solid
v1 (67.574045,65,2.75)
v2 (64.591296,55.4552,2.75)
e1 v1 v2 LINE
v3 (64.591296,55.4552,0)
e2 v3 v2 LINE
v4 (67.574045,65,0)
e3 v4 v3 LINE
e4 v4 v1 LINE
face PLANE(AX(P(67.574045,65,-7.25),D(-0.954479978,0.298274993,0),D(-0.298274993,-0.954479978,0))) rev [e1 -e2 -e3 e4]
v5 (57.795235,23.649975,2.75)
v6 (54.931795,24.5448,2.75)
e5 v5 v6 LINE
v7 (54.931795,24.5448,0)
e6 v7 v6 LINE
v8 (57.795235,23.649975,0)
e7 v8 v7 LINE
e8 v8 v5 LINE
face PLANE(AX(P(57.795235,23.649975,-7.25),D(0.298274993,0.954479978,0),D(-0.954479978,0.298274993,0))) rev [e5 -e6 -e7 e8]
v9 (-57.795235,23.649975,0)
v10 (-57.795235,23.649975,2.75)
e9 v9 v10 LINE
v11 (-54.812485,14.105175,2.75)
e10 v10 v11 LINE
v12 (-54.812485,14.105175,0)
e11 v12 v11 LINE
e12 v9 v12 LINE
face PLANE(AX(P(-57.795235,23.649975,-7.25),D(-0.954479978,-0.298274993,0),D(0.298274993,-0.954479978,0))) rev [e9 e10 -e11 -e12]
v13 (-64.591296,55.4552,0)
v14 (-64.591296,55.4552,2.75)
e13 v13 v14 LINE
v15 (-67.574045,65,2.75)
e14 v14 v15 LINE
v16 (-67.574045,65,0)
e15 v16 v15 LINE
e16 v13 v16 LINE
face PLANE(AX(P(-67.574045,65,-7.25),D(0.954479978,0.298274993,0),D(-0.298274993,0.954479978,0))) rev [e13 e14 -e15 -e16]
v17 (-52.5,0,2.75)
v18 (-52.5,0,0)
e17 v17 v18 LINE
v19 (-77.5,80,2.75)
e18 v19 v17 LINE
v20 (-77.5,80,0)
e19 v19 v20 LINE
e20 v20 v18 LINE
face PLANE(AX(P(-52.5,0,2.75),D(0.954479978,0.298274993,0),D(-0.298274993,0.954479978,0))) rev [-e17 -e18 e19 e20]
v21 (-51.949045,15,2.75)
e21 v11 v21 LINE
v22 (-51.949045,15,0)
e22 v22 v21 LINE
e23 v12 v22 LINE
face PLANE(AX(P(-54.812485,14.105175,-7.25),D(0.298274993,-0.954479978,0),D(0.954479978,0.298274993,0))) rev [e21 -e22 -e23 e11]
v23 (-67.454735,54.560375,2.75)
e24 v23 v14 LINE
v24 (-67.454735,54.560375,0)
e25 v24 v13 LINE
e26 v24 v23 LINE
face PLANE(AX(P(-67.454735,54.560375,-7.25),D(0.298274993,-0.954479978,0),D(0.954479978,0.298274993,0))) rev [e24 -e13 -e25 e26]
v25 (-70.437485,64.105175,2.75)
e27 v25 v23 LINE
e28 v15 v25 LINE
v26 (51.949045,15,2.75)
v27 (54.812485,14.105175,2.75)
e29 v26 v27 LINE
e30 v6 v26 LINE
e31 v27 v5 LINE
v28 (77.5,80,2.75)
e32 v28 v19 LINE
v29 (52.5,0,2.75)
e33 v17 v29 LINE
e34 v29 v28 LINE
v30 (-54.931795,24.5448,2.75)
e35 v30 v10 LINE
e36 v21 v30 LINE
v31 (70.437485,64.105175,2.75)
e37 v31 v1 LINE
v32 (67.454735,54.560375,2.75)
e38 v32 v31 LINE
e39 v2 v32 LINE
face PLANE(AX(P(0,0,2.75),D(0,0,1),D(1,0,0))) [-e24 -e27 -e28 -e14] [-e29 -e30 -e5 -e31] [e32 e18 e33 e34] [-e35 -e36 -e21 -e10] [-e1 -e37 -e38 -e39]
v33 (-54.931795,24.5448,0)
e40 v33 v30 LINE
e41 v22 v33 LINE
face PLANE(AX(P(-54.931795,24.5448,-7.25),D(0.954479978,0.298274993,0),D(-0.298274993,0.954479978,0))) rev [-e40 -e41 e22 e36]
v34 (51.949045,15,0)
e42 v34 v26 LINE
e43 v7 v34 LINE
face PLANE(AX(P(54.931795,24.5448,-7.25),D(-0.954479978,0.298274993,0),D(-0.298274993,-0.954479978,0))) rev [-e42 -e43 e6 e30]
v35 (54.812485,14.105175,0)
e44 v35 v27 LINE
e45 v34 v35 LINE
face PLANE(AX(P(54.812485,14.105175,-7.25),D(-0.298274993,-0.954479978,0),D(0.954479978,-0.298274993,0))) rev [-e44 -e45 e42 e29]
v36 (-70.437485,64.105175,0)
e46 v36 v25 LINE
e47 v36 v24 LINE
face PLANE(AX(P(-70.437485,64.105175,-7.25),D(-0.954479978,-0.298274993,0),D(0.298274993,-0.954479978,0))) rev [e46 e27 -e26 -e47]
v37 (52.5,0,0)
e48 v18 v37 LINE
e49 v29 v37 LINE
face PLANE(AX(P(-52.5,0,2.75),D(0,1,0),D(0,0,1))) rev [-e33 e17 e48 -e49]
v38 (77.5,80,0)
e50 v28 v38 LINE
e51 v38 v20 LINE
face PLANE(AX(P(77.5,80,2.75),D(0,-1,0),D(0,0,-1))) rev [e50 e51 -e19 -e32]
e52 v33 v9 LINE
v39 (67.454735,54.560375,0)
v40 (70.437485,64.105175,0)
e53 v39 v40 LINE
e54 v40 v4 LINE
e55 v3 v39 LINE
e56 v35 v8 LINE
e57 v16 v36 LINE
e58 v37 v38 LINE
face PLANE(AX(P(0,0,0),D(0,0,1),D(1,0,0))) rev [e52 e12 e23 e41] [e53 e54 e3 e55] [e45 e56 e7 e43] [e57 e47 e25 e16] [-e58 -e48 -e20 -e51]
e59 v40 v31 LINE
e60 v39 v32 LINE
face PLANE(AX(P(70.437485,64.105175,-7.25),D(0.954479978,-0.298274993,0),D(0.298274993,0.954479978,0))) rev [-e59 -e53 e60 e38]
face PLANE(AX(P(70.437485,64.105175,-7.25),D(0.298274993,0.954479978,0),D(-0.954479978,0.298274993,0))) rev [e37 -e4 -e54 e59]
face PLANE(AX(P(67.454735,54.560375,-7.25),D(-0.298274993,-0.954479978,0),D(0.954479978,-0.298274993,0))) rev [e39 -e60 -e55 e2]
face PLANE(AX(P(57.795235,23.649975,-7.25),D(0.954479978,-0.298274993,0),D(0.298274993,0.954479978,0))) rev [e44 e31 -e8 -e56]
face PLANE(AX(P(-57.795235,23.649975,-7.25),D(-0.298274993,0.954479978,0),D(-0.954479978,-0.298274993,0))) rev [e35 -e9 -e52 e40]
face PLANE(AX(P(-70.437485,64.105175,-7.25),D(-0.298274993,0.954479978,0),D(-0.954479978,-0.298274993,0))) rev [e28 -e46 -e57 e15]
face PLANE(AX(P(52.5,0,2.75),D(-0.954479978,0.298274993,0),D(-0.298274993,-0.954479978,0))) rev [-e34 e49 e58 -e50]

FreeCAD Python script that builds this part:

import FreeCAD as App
import Part
import Sketcher

V = App.Vector
Q = App.Units.Quantity

doc = App.newDocument("Part")
body = doc.addObject("PartDesign::Body", "Body")

sketch1 = doc.addObject("Sketcher::SketchObject", "Sketch")
body.addObject(sketch1)
sketch1.AttachmentSupport = (doc.XY_Plane, [""])
sketch1.MapMode = "FlatFace"
sketch1.addGeometry([
    Part.LineSegment(V(-52, 0, 0), V(52, 0, 0)),
    Part.LineSegment(V(52, 0, 0), V(78, 80, 0)),
    Part.LineSegment(V(78, 80, 0), V(-78, 80, 0)),
    Part.LineSegment(V(-78, 80, 0), V(-52, 0, 0)),
], False)
sketch1.addConstraint([
    Sketcher.Constraint("Coincident", 0, 2, 1, 1),
    Sketcher.Constraint("Coincident", 1, 2, 2, 1),
    Sketcher.Constraint("Coincident", 2, 2, 3, 1),
    Sketcher.Constraint("Coincident", 3, 2, 0, 1),
    Sketcher.Constraint("Horizontal", 0),
    Sketcher.Constraint("Horizontal", 2),
    Sketcher.Constraint("Symmetric", 0, 2, 3, 2, -1, 1),
    Sketcher.Constraint("Equal", 1, 3),
    Sketcher.Constraint("DistanceX", 0, 1, 0, 2, Q("105 mm")),
    Sketcher.Constraint("DistanceX", 2, 2, 2, 1, Q("155 mm")),
    Sketcher.Constraint("DistanceY", -1, 1, 1, 2, Q("80 mm")),
])
pad1 = doc.addObject("PartDesign::Pad", "Pad")
body.addObject(pad1)
pad1.Profile = sketch1
pad1.Length = 2.75

sketch2 = doc.addObject("Sketcher::SketchObject", "Sketch001")
body.addObject(sketch2)
sketch2.AttachmentSupport = (doc.XY_Plane, [""])
sketch2.MapMode = "FlatFace"
sketch2.AttachmentOffset = App.Placement(V(0, 0, 2.75), App.Rotation())
sketch2.addGeometry([
    Part.LineSegment(V(67.5, 54.6, 0), V(70.4, 64.1, 0)),
    Part.LineSegment(V(70.4, 64.1, 0), V(67.6, 65, 0)),
    Part.LineSegment(V(67.6, 65, 0), V(64.6, 55.5, 0)),
    Part.LineSegment(V(64.6, 55.5, 0), V(67.5, 54.6, 0)),
    Part.LineSegment(V(54.8, 14.1, 0), V(57.8, 23.6, 0)),
    Part.LineSegment(V(57.8, 23.6, 0), V(54.9, 24.5, 0)),
    Part.LineSegment(V(54.9, 24.5, 0), V(51.9, 15, 0)),
    Part.LineSegment(V(51.9, 15, 0), V(54.8, 14.1, 0)),
    Part.LineSegment(V(-51.9, 15, 0), V(-54.9, 24.5, 0)),
    Part.LineSegment(V(-54.9, 24.5, 0), V(-57.8, 23.6, 0)),
    Part.LineSegment(V(-57.8, 23.6, 0), V(-54.8, 14.1, 0)),
    Part.LineSegment(V(-54.8, 14.1, 0), V(-51.9, 15, 0)),
    Part.LineSegment(V(-64.6, 55.5, 0), V(-67.6, 65, 0)),
    Part.LineSegment(V(-67.6, 65, 0), V(-70.4, 64.1, 0)),
    Part.LineSegment(V(-70.4, 64.1, 0), V(-67.5, 54.6, 0)),
    Part.LineSegment(V(-67.5, 54.6, 0), V(-64.6, 55.5, 0)),
], False)
sketch2.addConstraint([
    Sketcher.Constraint("Coincident", 0, 2, 1, 1),
    Sketcher.Constraint("Coincident", 1, 2, 2, 1),
    Sketcher.Constraint("Coincident", 2, 2, 3, 1),
    Sketcher.Constraint("Coincident", 3, 2, 0, 1),
    Sketcher.Constraint("Coincident", 4, 2, 5, 1),
    Sketcher.Constraint("Coincident", 5, 2, 6, 1),
    Sketcher.Constraint("Coincident", 6, 2, 7, 1),
    Sketcher.Constraint("Coincident", 7, 2, 4, 1),
    Sketcher.Constraint("Coincident", 8, 2, 9, 1),
    Sketcher.Constraint("Coincident", 9, 2, 10, 1),
    Sketcher.Constraint("Coincident", 10, 2, 11, 1),
    Sketcher.Constraint("Coincident", 11, 2, 8, 1),
    Sketcher.Constraint("Coincident", 12, 2, 13, 1),
    Sketcher.Constraint("Coincident", 13, 2, 14, 1),
    Sketcher.Constraint("Coincident", 14, 2, 15, 1),
    Sketcher.Constraint("Coincident", 15, 2, 12, 1),
    Sketcher.Constraint("Symmetric", 5, 2, 8, 2, -2),
    Sketcher.Constraint("Symmetric", 4, 2, 9, 2, -2),
    Sketcher.Constraint("Symmetric", 7, 2, 10, 2, -2),
    Sketcher.Constraint("Symmetric", 6, 2, 11, 2, -2),
    Sketcher.Constraint("Symmetric", 1, 2, 12, 2, -2),
    Sketcher.Constraint("Symmetric", 0, 2, 13, 2, -2),
    Sketcher.Constraint("Symmetric", 3, 2, 14, 2, -2),
    Sketcher.Constraint("Symmetric", 2, 2, 15, 2, -2),
    Sketcher.Constraint("Perpendicular", 0, 1),
    Sketcher.Constraint("Perpendicular", 1, 2),
    Sketcher.Constraint("Perpendicular", 2, 3),
    Sketcher.Constraint("Perpendicular", 3, 4),
    Sketcher.Constraint("Perpendicular", 4, 5),
    Sketcher.Constraint("Perpendicular", 5, 6),
    Sketcher.Constraint("Perpendicular", 6, 7),
    Sketcher.Constraint("Equal", 2, 4),
    Sketcher.Constraint("Equal", 3, 5),
    Sketcher.Constraint("Distance", 0, Q("10 mm")),
    Sketcher.Constraint("Distance", 1, Q("3 mm")),
    Sketcher.Constraint("DistanceY", -1, 1, 1, 2, Q("65 mm")),
    Sketcher.Constraint("DistanceY", -1, 1, 6, 2, Q("15 mm")),
    Sketcher.Constraint("DistanceX", 6, 2, 1, 2, Q("15.625 mm")),
    Sketcher.Constraint("DistanceY", -1, 1, 2, 2, Q("55.4552 mm")),
    Sketcher.Constraint("DistanceX", 8, 2, 6, 2, Q("106.880841 mm")),
])
pocket1 = doc.addObject("PartDesign::Pocket", "Pocket")
body.addObject(pocket1)
pocket1.Profile = sketch2
pocket1.Length = 10

doc.recompute()
